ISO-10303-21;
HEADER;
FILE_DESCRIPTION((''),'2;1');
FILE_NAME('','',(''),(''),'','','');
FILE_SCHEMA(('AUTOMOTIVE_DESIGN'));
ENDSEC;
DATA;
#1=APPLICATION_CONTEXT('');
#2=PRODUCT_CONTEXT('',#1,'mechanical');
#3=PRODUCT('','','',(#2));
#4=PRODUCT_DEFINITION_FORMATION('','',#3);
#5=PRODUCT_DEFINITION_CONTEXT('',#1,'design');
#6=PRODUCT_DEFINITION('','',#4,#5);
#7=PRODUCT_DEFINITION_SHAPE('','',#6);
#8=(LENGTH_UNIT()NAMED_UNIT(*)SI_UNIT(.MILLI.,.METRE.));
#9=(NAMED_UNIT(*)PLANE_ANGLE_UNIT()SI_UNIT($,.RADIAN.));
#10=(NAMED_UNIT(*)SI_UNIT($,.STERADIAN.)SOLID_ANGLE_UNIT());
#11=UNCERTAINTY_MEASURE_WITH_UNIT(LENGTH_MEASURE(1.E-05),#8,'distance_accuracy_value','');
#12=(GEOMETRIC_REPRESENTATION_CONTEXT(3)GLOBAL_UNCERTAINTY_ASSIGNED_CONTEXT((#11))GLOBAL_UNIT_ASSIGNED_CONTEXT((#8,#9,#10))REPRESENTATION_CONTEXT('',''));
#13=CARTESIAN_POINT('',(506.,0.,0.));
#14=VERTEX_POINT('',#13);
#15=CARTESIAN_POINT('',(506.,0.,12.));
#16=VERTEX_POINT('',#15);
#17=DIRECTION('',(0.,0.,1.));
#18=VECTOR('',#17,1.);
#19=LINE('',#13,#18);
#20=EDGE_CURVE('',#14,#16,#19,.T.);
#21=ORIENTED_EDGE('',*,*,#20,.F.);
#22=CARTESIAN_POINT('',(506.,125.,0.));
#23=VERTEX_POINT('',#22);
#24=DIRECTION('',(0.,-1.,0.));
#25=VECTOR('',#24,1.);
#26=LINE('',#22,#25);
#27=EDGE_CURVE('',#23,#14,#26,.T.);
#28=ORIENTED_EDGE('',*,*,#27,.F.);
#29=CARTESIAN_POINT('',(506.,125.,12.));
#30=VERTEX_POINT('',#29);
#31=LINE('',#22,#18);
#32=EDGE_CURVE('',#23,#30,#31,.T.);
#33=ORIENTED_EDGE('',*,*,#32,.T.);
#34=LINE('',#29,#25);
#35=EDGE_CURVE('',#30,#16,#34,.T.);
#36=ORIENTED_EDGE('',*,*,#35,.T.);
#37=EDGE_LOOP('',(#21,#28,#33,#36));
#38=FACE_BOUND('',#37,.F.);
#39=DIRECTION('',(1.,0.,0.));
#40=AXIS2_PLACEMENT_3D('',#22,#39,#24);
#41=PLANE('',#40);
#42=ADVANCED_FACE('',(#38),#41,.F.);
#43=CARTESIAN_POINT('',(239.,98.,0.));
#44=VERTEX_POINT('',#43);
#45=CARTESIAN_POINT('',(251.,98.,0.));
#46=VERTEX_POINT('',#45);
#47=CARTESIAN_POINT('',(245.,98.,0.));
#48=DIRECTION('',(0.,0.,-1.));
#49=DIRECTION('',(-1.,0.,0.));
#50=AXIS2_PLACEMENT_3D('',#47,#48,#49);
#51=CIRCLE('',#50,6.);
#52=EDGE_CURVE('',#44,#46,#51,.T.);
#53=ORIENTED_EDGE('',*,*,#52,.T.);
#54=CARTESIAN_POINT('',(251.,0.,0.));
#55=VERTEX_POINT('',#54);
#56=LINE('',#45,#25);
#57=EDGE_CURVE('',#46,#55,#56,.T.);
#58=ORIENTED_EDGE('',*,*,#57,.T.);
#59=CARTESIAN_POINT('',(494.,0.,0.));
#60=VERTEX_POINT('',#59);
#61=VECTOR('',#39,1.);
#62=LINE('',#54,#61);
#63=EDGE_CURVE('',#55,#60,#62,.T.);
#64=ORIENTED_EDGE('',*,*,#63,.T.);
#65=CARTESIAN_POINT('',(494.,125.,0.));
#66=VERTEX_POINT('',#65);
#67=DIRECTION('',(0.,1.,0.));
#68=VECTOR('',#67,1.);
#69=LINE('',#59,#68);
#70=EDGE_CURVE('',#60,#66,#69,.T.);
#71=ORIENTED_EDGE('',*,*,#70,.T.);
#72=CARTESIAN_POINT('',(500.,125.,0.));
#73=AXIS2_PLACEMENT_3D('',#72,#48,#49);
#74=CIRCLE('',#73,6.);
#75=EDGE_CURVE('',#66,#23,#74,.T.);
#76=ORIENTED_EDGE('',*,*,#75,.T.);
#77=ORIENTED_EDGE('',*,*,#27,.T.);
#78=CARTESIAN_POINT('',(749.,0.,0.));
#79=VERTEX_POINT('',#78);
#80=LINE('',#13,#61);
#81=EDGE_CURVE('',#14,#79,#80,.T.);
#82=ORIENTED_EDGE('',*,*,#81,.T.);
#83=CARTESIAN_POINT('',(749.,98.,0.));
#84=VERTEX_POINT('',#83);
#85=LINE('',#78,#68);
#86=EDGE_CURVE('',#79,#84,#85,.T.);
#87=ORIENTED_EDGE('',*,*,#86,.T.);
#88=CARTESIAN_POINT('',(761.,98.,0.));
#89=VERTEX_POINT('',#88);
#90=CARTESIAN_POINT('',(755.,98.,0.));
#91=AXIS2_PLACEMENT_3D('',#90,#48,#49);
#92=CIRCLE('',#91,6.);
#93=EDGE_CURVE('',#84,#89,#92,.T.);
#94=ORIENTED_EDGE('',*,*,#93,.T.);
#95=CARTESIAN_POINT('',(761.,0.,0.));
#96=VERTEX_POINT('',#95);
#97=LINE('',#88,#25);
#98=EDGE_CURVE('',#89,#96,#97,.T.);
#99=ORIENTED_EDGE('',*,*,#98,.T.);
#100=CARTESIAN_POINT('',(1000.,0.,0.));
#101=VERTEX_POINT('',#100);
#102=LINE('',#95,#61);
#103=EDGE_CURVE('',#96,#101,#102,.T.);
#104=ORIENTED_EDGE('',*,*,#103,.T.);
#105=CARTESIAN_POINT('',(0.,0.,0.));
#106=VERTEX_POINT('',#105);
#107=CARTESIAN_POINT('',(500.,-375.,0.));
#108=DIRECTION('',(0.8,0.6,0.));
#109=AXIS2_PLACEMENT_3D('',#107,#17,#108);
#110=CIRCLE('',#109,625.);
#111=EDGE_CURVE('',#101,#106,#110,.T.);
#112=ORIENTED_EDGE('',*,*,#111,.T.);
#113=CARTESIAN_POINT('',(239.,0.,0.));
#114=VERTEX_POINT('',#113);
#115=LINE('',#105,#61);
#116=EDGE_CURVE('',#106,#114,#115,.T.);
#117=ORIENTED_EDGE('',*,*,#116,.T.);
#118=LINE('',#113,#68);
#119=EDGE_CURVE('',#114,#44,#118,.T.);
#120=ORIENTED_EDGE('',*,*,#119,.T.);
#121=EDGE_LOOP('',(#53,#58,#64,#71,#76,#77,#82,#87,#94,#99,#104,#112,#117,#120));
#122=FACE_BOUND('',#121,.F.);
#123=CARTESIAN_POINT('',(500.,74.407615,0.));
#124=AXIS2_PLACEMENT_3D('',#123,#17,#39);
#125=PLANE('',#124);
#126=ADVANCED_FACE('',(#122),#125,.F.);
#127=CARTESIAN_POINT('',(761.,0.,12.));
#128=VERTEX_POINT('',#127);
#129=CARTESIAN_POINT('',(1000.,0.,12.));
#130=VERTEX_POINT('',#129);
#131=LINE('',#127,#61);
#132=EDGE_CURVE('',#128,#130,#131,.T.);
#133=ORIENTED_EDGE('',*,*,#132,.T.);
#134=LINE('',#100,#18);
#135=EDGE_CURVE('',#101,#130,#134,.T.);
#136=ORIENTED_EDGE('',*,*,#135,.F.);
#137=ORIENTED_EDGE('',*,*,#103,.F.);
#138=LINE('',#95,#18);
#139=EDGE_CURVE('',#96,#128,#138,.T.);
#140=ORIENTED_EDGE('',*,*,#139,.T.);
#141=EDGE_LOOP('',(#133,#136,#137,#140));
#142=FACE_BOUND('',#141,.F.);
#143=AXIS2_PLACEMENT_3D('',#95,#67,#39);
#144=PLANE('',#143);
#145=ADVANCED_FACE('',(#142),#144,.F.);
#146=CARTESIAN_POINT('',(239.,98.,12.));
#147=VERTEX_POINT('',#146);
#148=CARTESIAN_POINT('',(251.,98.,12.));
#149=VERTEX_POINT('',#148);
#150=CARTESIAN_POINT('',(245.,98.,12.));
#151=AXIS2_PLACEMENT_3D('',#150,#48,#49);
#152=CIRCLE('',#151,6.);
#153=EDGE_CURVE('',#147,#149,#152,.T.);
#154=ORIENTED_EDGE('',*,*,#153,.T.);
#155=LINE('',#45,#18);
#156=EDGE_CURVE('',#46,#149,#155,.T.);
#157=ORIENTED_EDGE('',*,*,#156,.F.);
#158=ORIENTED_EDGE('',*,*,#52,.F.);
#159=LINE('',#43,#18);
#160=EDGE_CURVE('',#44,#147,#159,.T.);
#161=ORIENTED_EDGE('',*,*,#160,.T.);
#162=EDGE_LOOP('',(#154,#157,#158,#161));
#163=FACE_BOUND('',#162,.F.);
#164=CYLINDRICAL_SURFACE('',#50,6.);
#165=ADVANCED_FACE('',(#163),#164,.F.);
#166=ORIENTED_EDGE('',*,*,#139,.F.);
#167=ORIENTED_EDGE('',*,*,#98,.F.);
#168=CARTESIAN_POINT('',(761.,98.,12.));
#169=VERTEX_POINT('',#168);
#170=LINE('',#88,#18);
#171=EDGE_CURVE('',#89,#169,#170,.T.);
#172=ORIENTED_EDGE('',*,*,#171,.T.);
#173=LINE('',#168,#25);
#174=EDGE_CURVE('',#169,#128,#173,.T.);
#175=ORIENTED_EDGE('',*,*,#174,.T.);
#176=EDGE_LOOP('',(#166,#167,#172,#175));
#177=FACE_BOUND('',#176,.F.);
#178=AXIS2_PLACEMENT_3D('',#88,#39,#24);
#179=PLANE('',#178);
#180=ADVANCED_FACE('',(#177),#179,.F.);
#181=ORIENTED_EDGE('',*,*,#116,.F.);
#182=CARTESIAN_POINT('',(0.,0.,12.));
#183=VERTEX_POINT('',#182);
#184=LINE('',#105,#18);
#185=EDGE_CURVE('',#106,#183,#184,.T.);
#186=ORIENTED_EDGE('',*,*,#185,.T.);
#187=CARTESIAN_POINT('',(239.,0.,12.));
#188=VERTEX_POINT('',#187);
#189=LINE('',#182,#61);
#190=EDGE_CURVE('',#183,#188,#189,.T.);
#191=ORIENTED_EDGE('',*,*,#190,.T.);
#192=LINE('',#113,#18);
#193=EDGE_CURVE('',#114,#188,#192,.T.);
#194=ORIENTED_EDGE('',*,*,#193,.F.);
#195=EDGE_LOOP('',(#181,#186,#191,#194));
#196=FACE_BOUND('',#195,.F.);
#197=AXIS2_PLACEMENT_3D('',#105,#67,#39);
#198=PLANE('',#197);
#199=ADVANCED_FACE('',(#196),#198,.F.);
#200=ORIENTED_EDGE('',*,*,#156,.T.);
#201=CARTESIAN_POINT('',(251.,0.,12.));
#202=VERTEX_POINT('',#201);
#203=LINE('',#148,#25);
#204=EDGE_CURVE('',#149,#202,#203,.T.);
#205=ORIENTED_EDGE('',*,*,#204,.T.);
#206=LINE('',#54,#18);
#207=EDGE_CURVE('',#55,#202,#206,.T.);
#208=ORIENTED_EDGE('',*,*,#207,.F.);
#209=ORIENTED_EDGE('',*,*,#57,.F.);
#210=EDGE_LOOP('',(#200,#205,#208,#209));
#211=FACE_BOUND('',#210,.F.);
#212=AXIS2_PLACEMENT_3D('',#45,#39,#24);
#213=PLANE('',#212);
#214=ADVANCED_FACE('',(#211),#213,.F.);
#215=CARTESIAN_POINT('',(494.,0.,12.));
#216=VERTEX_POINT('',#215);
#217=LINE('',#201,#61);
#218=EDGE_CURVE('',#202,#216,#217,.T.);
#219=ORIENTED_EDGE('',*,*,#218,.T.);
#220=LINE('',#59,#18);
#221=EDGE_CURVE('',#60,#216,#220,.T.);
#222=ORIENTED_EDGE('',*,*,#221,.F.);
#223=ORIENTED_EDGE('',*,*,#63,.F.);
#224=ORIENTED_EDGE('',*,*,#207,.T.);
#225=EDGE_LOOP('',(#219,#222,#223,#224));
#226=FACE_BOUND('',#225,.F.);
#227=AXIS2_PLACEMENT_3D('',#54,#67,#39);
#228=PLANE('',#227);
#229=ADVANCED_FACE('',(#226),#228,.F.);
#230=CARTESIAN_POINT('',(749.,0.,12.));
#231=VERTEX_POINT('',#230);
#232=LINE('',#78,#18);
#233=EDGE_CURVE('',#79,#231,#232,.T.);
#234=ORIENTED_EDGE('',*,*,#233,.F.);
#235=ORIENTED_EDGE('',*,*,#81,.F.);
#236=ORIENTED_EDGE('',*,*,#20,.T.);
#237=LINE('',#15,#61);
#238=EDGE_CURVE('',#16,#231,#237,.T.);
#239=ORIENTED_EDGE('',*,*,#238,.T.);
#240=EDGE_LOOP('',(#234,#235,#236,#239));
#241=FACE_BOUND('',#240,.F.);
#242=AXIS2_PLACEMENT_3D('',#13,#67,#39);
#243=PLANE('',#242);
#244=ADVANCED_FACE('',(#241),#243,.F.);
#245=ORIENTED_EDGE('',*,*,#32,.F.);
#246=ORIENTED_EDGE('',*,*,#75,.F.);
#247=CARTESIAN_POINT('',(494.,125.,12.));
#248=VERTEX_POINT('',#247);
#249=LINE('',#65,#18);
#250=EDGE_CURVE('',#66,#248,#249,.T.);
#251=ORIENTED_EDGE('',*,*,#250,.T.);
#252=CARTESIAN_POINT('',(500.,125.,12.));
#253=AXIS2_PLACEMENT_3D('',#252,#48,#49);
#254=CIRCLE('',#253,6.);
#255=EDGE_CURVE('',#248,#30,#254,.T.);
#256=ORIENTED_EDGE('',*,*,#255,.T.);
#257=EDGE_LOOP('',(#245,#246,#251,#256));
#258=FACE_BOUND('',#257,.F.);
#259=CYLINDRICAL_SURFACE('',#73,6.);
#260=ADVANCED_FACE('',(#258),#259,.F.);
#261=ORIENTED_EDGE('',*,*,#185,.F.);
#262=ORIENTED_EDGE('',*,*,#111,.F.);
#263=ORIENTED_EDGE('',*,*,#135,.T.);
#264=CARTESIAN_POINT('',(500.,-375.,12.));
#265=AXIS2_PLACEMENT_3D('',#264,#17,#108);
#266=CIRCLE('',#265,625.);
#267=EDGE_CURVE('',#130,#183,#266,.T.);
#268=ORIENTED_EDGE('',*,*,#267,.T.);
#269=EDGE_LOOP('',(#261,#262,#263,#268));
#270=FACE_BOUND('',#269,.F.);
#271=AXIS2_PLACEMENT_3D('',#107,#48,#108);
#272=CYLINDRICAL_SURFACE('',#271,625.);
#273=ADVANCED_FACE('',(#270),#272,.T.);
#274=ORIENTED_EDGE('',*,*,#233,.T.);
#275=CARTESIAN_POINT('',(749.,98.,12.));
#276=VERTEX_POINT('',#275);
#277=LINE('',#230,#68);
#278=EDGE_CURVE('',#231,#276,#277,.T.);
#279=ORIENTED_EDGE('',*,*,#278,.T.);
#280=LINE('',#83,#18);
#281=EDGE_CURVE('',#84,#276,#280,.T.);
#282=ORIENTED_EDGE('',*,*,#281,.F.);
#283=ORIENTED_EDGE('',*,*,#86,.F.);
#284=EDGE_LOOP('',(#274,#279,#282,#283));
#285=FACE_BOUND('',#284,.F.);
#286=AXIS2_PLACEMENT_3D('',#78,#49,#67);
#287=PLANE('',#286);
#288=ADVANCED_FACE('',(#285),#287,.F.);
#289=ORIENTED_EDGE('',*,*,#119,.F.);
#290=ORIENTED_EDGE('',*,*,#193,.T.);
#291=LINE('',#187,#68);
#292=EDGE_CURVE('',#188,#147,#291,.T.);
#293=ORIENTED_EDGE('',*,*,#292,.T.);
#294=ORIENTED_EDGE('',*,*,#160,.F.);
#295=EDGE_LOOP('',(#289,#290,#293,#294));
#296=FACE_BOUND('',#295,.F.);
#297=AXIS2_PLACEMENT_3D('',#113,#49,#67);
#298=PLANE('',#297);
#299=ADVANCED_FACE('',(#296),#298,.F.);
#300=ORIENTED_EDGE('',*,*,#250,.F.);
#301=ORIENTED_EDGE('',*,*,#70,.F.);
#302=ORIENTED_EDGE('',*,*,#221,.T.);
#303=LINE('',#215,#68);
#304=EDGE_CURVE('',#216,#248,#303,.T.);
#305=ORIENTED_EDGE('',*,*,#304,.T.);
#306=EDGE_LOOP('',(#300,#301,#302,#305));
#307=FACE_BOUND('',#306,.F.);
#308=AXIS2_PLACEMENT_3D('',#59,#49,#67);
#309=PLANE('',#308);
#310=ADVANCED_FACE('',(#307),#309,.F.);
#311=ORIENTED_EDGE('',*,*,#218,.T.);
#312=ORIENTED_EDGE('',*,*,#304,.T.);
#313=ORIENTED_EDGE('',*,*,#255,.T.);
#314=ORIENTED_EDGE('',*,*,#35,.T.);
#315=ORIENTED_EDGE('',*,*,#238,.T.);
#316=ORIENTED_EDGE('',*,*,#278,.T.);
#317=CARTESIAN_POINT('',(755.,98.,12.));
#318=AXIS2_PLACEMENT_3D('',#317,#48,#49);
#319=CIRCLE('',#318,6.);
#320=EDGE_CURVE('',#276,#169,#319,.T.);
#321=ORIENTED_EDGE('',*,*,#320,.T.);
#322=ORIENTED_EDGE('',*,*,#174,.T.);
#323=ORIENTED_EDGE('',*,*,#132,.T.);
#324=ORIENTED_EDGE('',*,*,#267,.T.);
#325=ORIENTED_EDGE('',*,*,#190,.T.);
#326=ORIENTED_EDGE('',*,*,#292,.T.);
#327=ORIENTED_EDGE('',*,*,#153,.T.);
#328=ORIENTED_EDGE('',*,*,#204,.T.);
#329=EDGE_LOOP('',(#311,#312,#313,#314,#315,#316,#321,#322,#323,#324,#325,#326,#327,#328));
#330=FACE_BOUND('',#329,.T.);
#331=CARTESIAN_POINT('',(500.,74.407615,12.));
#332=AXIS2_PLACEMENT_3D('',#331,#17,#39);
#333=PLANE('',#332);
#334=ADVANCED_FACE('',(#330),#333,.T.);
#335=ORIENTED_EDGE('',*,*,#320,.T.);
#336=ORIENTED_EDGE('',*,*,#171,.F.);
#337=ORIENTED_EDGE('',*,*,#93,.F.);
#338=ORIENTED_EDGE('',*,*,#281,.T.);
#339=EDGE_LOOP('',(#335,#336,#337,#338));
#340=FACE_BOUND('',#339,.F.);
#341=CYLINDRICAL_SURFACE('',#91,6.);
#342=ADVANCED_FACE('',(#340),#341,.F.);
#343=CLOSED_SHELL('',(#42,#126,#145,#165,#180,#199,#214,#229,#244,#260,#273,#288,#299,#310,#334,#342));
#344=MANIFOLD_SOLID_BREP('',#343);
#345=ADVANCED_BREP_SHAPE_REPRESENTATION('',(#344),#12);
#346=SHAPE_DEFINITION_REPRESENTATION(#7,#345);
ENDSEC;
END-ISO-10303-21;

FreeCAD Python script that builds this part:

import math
import FreeCAD as App
import Part
import Sketcher
from FreeCAD import Vector

doc = App.newDocument("Part")
params = doc.addObject("Spreadsheet::Sheet", "Params")
for row, (alias, value) in enumerate([
    ("sketch1_radius", "625 mm"),
    ("sketch1_radius2", "6 mm"),
    ("sketch1_width", "239 mm"),
    ("sketch1_width2", "243 mm"),
    ("sketch1_height", "98 mm"),
    ("pad1_length", "12 mm"),
], start=1):
    params.set(f"A{row}", alias)
    params.set(f"B{row}", "=" + value)
    params.setAlias(f"B{row}", alias)

body = doc.addObject("PartDesign::Body", "Body")

# Sketch on XY plane
sketch1 = body.newObject("Sketcher::SketchObject", "Sketch")
sketch1.AttachmentSupport = (doc.getObject("XY_Plane"), [""])
sketch1.MapMode = "FlatFace"
sketch1.addGeometry([
    Part.ArcOfCircle(Part.Circle(Vector(500, -375, 0), Vector(0, 0, 1), 625), math.radians(36.869898), math.radians(143.130102)),  # 0
    Part.LineSegment(Vector(0, 0, 0), Vector(239, 0, 0)),  # 1
    Part.LineSegment(Vector(239, 0, 0), Vector(239, 98, 0)),  # 2
    Part.ArcOfCircle(Part.Circle(Vector(245, 98, 0), Vector(0, 0, 1), 6), math.radians(0), math.radians(180)),  # 3
    Part.LineSegment(Vector(251, 98, 0), Vector(251, 0, 0)),  # 4
    Part.LineSegment(Vector(251, 0, 0), Vector(494, 0, 0)),  # 5
    Part.LineSegment(Vector(494, 0, 0), Vector(494, 125, 0)),  # 6
    Part.ArcOfCircle(Part.Circle(Vector(500, 125, 0), Vector(0, 0, 1), 6), math.radians(0), math.radians(180)),  # 7
    Part.LineSegment(Vector(506, 125, 0), Vector(506, 0, 0)),  # 8
    Part.LineSegment(Vector(506, 0, 0), Vector(749, 0, 0)),  # 9
    Part.LineSegment(Vector(749, 0, 0), Vector(749, 98, 0)),  # 10
    Part.ArcOfCircle(Part.Circle(Vector(755, 98, 0), Vector(0, 0, 1), 6), math.radians(0), math.radians(180)),  # 11
    Part.LineSegment(Vector(761, 98, 0), Vector(761, 0, 0)),  # 12
    Part.LineSegment(Vector(761, 0, 0), Vector(1000, 0, 0)),  # 13
], False)
sketch1.addConstraint([
    Sketcher.Constraint("Coincident", 0, 2, 1, 1),
    Sketcher.Constraint("Coincident", 1, 2, 2, 1),
    Sketcher.Constraint("Tangent", 2, 2, 3, 2),
    Sketcher.Constraint("Tangent", 3, 1, 4, 1),
    Sketcher.Constraint("Coincident", 4, 2, 5, 1),
    Sketcher.Constraint("Coincident", 5, 2, 6, 1),
    Sketcher.Constraint("Tangent", 6, 2, 7, 2),
    Sketcher.Constraint("Tangent", 7, 1, 8, 1),
    Sketcher.Constraint("Coincident", 8, 2, 9, 1),
    Sketcher.Constraint("Coincident", 9, 2, 10, 1),
    Sketcher.Constraint("Tangent", 10, 2, 11, 2),
    Sketcher.Constraint("Tangent", 11, 1, 12, 1),
    Sketcher.Constraint("Coincident", 12, 2, 13, 1),
    Sketcher.Constraint("Coincident", 13, 2, 0, 1),
    Sketcher.Constraint("Horizontal", 1),
    Sketcher.Constraint("Vertical", 2),
    Sketcher.Constraint("Vertical", 4),
    Sketcher.Constraint("Horizontal", 5),
    Sketcher.Constraint("Vertical", 6),
    Sketcher.Constraint("Vertical", 8),
    Sketcher.Constraint("Horizontal", 9),
    Sketcher.Constraint("Vertical", 10),
    Sketcher.Constraint("Vertical", 12),
    Sketcher.Constraint("Horizontal", 13),
    Sketcher.Constraint("Equal", 3, 7),
    Sketcher.Constraint("Equal", 7, 11),
    Sketcher.Constraint("PointOnObject", 1, 2, -1),
    Sketcher.Constraint("PointOnObject", 4, 2, -1),
    Sketcher.Constraint("PointOnObject", 8, 2, -1),
    Sketcher.Constraint("PointOnObject", 12, 2, -1),
    Sketcher.Constraint("Horizontal", 3, 3, 11, 3),
    Sketcher.Constraint("Vertical", 0, 3, 7, 3),
    Sketcher.Constraint("Equal", 5, 9),
    Sketcher.Constraint("Radius", 0, 625.0),
    Sketcher.Constraint("Radius", 3, 6.0),
    Sketcher.Constraint("DistanceX", 1, 1, 1, 2, 239.0),
    Sketcher.Constraint("DistanceX", 5, 1, 5, 2, 243.0),
    Sketcher.Constraint("DistanceY", 2, 1, 2, 2, 98.0),
    Sketcher.Constraint("DistanceY", 6, 1, 6, 2, 125.0),
    Sketcher.Constraint("DistanceX", -1, 1, 0, 3, 500.0),
])
sketch1.setExpression("Constraints[33]", "Params.sketch1_radius")
sketch1.setExpression("Constraints[34]", "Params.sketch1_radius2")
sketch1.setExpression("Constraints[35]", "Params.sketch1_width")
sketch1.setExpression("Constraints[36]", "Params.sketch1_width2")
sketch1.setExpression("Constraints[37]", "Params.sketch1_height")
pad1 = body.newObject("PartDesign::Pad", "Pad")
pad1.Profile = sketch1
pad1.setExpression("Length", "Params.pad1_length")

doc.recompute()
